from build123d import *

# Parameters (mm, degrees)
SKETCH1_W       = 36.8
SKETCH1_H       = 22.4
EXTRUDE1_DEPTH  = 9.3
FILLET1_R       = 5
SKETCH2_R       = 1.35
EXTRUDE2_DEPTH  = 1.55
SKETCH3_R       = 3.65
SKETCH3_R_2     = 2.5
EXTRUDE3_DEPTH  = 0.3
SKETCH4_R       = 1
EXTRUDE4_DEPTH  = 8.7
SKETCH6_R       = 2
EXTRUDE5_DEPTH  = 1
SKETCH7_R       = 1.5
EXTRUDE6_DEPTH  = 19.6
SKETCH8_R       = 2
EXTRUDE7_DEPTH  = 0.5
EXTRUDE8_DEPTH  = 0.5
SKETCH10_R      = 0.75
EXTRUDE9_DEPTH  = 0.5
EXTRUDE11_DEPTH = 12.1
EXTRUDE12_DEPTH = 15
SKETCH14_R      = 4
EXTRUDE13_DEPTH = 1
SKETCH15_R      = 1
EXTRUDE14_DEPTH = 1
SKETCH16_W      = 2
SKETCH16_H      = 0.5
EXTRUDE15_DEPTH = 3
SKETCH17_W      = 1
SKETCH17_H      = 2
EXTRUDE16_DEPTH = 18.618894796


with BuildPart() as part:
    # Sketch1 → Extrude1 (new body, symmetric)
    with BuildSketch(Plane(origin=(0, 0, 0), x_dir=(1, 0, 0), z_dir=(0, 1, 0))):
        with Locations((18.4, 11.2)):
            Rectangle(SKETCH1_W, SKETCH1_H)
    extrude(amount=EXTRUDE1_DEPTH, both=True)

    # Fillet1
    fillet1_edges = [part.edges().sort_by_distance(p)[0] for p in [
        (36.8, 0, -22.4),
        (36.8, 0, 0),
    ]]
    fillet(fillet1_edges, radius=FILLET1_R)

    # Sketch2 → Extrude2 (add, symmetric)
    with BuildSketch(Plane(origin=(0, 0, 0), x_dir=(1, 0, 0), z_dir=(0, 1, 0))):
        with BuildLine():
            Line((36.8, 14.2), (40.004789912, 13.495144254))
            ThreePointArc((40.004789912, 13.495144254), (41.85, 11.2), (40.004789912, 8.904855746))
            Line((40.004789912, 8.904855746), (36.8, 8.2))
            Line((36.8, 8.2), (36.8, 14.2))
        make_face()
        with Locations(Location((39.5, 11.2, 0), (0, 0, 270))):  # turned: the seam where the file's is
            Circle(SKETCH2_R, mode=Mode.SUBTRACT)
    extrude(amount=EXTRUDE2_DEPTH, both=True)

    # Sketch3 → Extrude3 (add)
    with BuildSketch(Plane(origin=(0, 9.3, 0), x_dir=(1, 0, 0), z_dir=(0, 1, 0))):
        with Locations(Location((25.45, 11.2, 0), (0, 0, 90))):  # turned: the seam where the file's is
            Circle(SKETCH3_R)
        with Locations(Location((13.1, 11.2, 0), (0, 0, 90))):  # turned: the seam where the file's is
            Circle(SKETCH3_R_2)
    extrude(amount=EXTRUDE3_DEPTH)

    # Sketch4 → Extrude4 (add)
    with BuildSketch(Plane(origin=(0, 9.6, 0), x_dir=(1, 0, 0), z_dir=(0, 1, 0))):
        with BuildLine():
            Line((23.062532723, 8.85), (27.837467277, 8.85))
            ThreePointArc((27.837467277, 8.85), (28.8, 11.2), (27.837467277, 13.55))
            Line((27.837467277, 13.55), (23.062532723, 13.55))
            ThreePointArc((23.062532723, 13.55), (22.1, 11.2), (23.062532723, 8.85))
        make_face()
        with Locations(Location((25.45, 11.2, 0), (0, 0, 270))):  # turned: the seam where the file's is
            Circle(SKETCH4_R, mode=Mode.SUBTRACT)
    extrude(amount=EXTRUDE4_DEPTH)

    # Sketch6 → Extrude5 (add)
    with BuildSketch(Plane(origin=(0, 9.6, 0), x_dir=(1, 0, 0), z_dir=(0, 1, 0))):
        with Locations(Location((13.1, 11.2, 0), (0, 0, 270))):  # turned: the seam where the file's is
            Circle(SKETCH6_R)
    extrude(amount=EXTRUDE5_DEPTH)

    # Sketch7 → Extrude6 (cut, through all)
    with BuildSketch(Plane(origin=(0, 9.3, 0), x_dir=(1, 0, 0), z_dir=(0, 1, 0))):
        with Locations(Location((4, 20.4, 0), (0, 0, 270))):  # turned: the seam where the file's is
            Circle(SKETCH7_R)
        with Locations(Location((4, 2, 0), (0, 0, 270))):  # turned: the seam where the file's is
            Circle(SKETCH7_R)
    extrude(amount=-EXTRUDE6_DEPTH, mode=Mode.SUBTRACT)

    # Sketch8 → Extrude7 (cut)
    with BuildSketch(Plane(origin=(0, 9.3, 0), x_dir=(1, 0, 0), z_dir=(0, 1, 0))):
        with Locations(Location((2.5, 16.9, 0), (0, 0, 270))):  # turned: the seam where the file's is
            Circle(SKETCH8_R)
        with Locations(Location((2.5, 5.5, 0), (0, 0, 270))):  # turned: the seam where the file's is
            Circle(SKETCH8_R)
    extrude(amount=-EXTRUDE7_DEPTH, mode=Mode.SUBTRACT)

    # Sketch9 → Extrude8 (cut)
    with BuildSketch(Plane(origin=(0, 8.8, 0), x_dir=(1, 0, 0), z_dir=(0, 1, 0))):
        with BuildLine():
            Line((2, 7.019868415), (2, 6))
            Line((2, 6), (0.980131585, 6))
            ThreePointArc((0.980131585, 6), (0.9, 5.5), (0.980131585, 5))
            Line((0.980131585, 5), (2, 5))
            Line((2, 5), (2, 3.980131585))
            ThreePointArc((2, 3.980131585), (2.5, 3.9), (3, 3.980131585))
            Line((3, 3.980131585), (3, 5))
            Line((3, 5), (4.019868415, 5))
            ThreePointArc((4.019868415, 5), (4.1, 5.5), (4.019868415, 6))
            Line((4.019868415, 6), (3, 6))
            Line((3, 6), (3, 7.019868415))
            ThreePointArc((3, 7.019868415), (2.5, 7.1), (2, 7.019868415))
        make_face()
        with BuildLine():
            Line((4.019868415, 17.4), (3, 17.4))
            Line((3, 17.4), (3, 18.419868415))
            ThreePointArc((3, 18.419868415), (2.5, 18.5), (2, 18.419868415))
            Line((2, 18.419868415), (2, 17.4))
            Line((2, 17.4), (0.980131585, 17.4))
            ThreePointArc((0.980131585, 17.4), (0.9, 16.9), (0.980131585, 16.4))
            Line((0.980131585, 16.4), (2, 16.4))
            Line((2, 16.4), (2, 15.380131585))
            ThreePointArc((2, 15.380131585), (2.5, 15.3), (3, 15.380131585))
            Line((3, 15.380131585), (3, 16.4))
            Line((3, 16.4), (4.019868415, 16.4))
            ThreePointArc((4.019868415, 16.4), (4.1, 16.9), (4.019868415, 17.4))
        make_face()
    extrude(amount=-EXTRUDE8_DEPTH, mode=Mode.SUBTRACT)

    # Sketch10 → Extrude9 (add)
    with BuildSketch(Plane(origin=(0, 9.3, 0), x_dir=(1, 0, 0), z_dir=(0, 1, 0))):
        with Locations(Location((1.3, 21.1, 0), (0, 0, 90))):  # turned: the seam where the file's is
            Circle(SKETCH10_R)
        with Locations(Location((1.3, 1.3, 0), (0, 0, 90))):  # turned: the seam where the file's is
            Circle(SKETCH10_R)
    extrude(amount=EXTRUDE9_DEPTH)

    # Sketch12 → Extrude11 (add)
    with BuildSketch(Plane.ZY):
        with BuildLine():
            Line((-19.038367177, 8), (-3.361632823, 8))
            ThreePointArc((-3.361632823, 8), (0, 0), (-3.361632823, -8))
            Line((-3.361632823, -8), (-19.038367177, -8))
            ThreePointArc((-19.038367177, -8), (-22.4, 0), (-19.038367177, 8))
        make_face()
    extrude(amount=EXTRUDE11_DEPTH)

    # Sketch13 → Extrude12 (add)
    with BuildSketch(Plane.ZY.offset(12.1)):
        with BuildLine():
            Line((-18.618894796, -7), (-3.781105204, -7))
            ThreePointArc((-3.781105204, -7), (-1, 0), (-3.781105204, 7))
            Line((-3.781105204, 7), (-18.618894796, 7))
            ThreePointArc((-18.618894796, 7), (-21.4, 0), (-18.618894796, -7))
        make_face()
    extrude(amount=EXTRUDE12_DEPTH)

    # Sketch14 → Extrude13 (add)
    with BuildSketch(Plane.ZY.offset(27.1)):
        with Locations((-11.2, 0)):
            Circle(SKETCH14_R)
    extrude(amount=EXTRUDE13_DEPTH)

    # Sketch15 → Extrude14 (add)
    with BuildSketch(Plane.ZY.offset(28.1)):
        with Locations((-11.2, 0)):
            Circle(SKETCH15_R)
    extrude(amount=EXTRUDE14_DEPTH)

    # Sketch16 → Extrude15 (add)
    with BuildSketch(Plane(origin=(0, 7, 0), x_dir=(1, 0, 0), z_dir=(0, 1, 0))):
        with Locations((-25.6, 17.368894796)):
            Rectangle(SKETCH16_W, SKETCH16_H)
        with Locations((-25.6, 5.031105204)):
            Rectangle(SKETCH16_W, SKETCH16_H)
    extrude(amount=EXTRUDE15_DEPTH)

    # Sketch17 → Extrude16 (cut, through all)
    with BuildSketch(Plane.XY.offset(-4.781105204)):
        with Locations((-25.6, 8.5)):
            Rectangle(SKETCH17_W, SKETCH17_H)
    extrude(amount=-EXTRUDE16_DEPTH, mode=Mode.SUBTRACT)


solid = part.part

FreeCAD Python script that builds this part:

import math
import FreeCAD as App
import Part
import Sketcher

V = App.Vector


def edges_at(feature, points):
    """Names of the edges that pass closest to the given points."""
    edges = feature.Shape.Edges
    near = lambda p: min(range(len(edges)), key=lambda i: edges[i].distToShape(Part.Vertex(*p))[0])
    return sorted({f"Edge{near(p) + 1}" for p in points})

doc = App.newDocument("Part")
params = doc.addObject("Spreadsheet::Sheet", "Params")
for row, (alias, value) in enumerate([
    ("sketch1_width", "36.8 mm"),
    ("sketch1_height", "22.4 mm"),
    ("pad1_length", "18.6 mm"),
    ("fillet_radius", "5 mm"),
    ("sketch2_diameter", "2.7 mm"),
    ("sketch2_height", "6 mm"),
    ("sketch2_radius", "2.35 mm"),
    ("pad2_length", "3.1 mm"),
    ("sketch3_diameter", "5 mm"),
    ("sketch3_diameter2", "7.3 mm"),
    ("pad3_length", "0.3 mm"),
    ("sketch4_diameter", "2 mm"),
    ("sketch4_radius", "3.35 mm"),
    ("pad4_length", "8.7 mm"),
    ("sketch5_diameter", "4 mm"),
    ("pad5_length", "1 mm"),
    ("sketch6_diameter", "3 mm"),
    ("sketch7_diameter", "4 mm"),
    ("pocket2_length", "0.5 mm"),
    ("sketch8_radius", "1.6 mm"),
    ("pocket3_length", "0.5 mm"),
    ("sketch9_diameter", "1.5 mm"),
    ("pad6_length", "0.5 mm"),
    ("sketch10_radius", "11.2 mm"),
    ("pad7_length", "12.1 mm"),
    ("sketch11_radius", "10.2 mm"),
    ("pad8_length", "15 mm"),
    ("sketch12_diameter", "8 mm"),
    ("pad9_length", "1 mm"),
    ("sketch13_diameter", "2 mm"),
    ("pad10_length", "1 mm"),
    ("sketch14_width", "2 mm"),
    ("sketch14_height", "0.5 mm"),
    ("pad11_length", "3 mm"),
    ("sketch15_width", "1 mm"),
    ("sketch15_height", "2 mm"),
], start=1):
    params.set(f"A{row}", alias)
    params.set(f"B{row}", "=" + value)
    params.setAlias(f"B{row}", alias)

body = doc.addObject("PartDesign::Body", "Body")

# Sketch on XZ plane
sketch1 = body.newObject("Sketcher::SketchObject", "Sketch")
sketch1.AttachmentSupport = (doc.getObject("XZ_Plane"), [""])
sketch1.MapMode = "FlatFace"
sketch1.addGeometry([
    Part.LineSegment(V(0, -22.4, 0), V(0, 0, 0)),
    Part.LineSegment(V(0, 0, 0), V(36.8, 0, 0)),
    Part.LineSegment(V(36.8, 0, 0), V(36.8, -22.4, 0)),
    Part.LineSegment(V(36.8, -22.4, 0), V(0, -22.4, 0)),
], False)
sketch1.addConstraint([
    Sketcher.Constraint("Coincident", 0, 2, 1, 1),
    Sketcher.Constraint("Coincident", 1, 2, 2, 1),
    Sketcher.Constraint("Coincident", 2, 2, 3, 1),
    Sketcher.Constraint("Coincident", 3, 2, 0, 1),
    Sketcher.Constraint("Vertical", 0),
    Sketcher.Constraint("Horizontal", 1),
    Sketcher.Constraint("Vertical", 2),
    Sketcher.Constraint("Horizontal", 3),
    Sketcher.Constraint("Coincident", 0, 2, -1, 1),
    Sketcher.Constraint("DistanceX", 1, 1, 1, 2, 36.8),
    Sketcher.Constraint("DistanceY", 0, 1, 0, 2, 22.4),
])
sketch1.setExpression("Constraints[9]", "Params.sketch1_width")
sketch1.setExpression("Constraints[10]", "Params.sketch1_height")
pad1 = body.newObject("PartDesign::Pad", "Pad")
pad1.Profile = sketch1
pad1.setExpression("Length", "Params.pad1_length")
pad1.Midplane = True
doc.recompute()

fillet = body.newObject("PartDesign::Fillet", "Fillet")
fillet.Base = (pad1, edges_at(pad1, [(36.8, 0, -22.4), (36.8, 0, 0)]))
fillet.setExpression("Radius", "Params.fillet_radius")

# Sketch on XZ plane
sketch2 = body.newObject("Sketcher::SketchObject", "Sketch001")
sketch2.AttachmentSupport = (doc.getObject("XZ_Plane"), [""])
sketch2.MapMode = "FlatFace"
sketch2.addGeometry([
    Part.LineSegment(V(40.00479, -13.495144, 0), V(36.8, -14.2, 0)),  # 0
    Part.LineSegment(V(36.8, -14.2, 0), V(36.8, -8.2, 0)),  # 1
    Part.LineSegment(V(36.8, -8.2, 0), V(40.00479, -8.904856, 0)),  # 2
    Part.ArcOfCircle(Part.Circle(V(39.5, -11.2, 0), V(0, 0, 1), 2.35), math.radians(-77.595959), math.radians(77.595959)),  # 3
    Part.Circle(V(39.5, -11.2, 0), V(0, 0, 1), 1.35),  # 4
], False)
sketch2.addConstraint([
    Sketcher.Constraint("Coincident", 0, 2, 1, 1),
    Sketcher.Constraint("Coincident", 1, 2, 2, 1),
    Sketcher.Constraint("Tangent", 2, 2, 3, 2),
    Sketcher.Constraint("Tangent", 3, 1, 0, 1),
    Sketcher.Constraint("Vertical", 1),
    Sketcher.Constraint("Coincident", 4, 3, 3, 3),
    Sketcher.Constraint("Vertical", 2, 2, 3, 1),
    Sketcher.Constraint("Diameter", 4, 2.7),
    Sketcher.Constraint("DistanceY", 1, 1, 1, 2, 6.0),
    Sketcher.Constraint("Radius", 3, 2.35),
    Sketcher.Constraint("DistanceX", -1, 1, 3, 3, 39.5),
    Sketcher.Constraint("DistanceY", 3, 3, -1, 1, 11.2),
    Sketcher.Constraint("DistanceX", -1, 1, 0, 2, 36.8),
])
sketch2.setExpression("Constraints[7]", "Params.sketch2_diameter")
sketch2.setExpression("Constraints[8]", "Params.sketch2_height")
sketch2.setExpression("Constraints[9]", "Params.sketch2_radius")
pad2 = body.newObject("PartDesign::Pad", "Pad001")
pad2.Profile = sketch2
pad2.setExpression("Length", "Params.pad2_length")
pad2.Midplane = True

# Sketch on XZ plane
sketch3 = body.newObject("Sketcher::SketchObject", "Sketch002")
sketch3.AttachmentSupport = (doc.getObject("XZ_Plane"), [""])
sketch3.MapMode = "FlatFace"
sketch3.AttachmentOffset = App.Placement(V(0, 0, -9.3), App.Rotation())
sketch3.addGeometry([
    Part.Circle(V(25.45, -11.2, 0), V(0, 0, 1), 3.65),
    Part.Circle(V(13.1, -11.2, 0), V(0, 0, 1), 2.5),
], False)
sketch3.addConstraint([
    Sketcher.Constraint("Horizontal", 0, 3, 1, 3),
    Sketcher.Constraint("Diameter", 1, 5.0),
    Sketcher.Constraint("Diameter", 0, 7.3),
    Sketcher.Constraint("DistanceY", 0, 3, -1, 1, 11.2),
    Sketcher.Constraint("DistanceX", -1, 1, 1, 3, 13.1),
    Sketcher.Constraint("DistanceX", -1, 1, 0, 3, 25.45),
])
sketch3.setExpression("Constraints[1]", "Params.sketch3_diameter")
sketch3.setExpression("Constraints[2]", "Params.sketch3_diameter2")
pad3 = body.newObject("PartDesign::Pad", "Pad002")
pad3.Profile = sketch3
pad3.setExpression("Length", "Params.pad3_length")
pad3.Reversed = True

# Sketch on XZ plane
sketch4 = body.newObject("Sketcher::SketchObject", "Sketch003")
sketch4.AttachmentSupport = (doc.getObject("XZ_Plane"), [""])
sketch4.MapMode = "FlatFace"
sketch4.AttachmentOffset = App.Placement(V(0, 0, -9.6), App.Rotation())
sketch4.addGeometry([
    Part.LineSegment(V(23.062533, -8.85, 0), V(27.837467, -8.85, 0)),  # 0
    Part.ArcOfCircle(Part.Circle(V(25.45, -11.2, 0), V(0, 0, 1), 3.35), math.radians(-44.546873), math.radians(44.546873)),  # 1
    Part.LineSegment(V(27.837467, -13.55, 0), V(23.062533, -13.55, 0)),  # 2
    Part.ArcOfCircle(Part.Circle(V(25.45, -11.2, 0), V(0, 0, 1), 3.35), math.radians(135.453127), math.radians(224.546873)),  # 3
    Part.Circle(V(25.45, -11.2, 0), V(0, 0, 1), 1),  # 4
], False)
sketch4.addConstraint([
    Sketcher.Constraint("Coincident", 0, 2, 1, 2),
    Sketcher.Constraint("Coincident", 1, 1, 2, 1),
    Sketcher.Constraint("Coincident", 2, 2, 3, 2),
    Sketcher.Constraint("Coincident", 3, 1, 0, 1),
    Sketcher.Constraint("Horizontal", 0),
    Sketcher.Constraint("Horizontal", 2),
    Sketcher.Constraint("Coincident", 3, 3, 1, 3),
    Sketcher.Constraint("Coincident", 4, 3, 1, 3),
    Sketcher.Constraint("Equal", 1, 3),
    Sketcher.Constraint("Vertical", 0, 2, 1, 1),
    Sketcher.Constraint("Diameter", 4, 2.0),
    Sketcher.Constraint("Radius", 1, 3.35),
    Sketcher.Constraint("DistanceY", 1, 3, -1, 1, 11.2),
    Sketcher.Constraint("DistanceY", 1, 1, 0, 2, 4.7),
    Sketcher.Constraint("DistanceX", -1, 1, 1, 3, 25.45),
])
sketch4.setExpression("Constraints[10]", "Params.sketch4_diameter")
sketch4.setExpression("Constraints[11]", "Params.sketch4_radius")
pad4 = body.newObject("PartDesign::Pad", "Pad003")
pad4.Profile = sketch4
pad4.setExpression("Length", "Params.pad4_length")
pad4.Reversed = True

# Sketch on XZ plane
sketch5 = body.newObject("Sketcher::SketchObject", "Sketch004")
sketch5.AttachmentSupport = (doc.getObject("XZ_Plane"), [""])
sketch5.MapMode = "FlatFace"
sketch5.AttachmentOffset = App.Placement(V(0, 0, -9.6), App.Rotation())
sketch5.addGeometry(Part.Circle(V(13.1, -11.2, 0), V(0, 0, 1), 2), False)
sketch5.addConstraint([
    Sketcher.Constraint("Diameter", 0, 4.0),
    Sketcher.Constraint("DistanceX", -1, 1, 0, 3, 13.1),
    Sketcher.Constraint("DistanceY", 0, 3, -1, 1, 11.2),
])
sketch5.setExpression("Constraints[0]", "Params.sketch5_diameter")
pad5 = body.newObject("PartDesign::Pad", "Pad004")
pad5.Profile = sketch5
pad5.setExpression("Length", "Params.pad5_length")
pad5.Reversed = True

# Sketch on XZ plane
sketch6 = body.newObject("Sketcher::SketchObject", "Sketch005")
sketch6.AttachmentSupport = (doc.getObject("XZ_Plane"), [""])
sketch6.MapMode = "FlatFace"
sketch6.AttachmentOffset = App.Placement(V(0, 0, -9.3), App.Rotation())
sketch6.addGeometry([
    Part.Circle(V(4, -20.4, 0), V(0, 0, 1), 1.5),
    Part.Circle(V(4, -2, 0), V(0, 0, 1), 1.5),
], False)
sketch6.addConstraint([
    Sketcher.Constraint("Equal", 0, 1),
    Sketcher.Constraint("Vertical", 0, 3, 1, 3),
    Sketcher.Constraint("Diameter", 0, 3.0),
    Sketcher.Constraint("DistanceX", -1, 1, 0, 3, 4.0),
    Sketcher.Constraint("DistanceY", 1, 3, -1, 1, 2.0),
    Sketcher.Constraint("DistanceY", 0, 3, -1, 1, 20.4),
])
sketch6.setExpression("Constraints[2]", "Params.sketch6_diameter")
pocket1 = body.newObject("PartDesign::Pocket", "Pocket")
pocket1.Profile = sketch6
pocket1.Type = "ThroughAll"
pocket1.Reversed = True

# Sketch on XZ plane
sketch7 = body.newObject("Sketcher::SketchObject", "Sketch006")
sketch7.AttachmentSupport = (doc.getObject("XZ_Plane"), [""])
sketch7.MapMode = "FlatFace"
sketch7.AttachmentOffset = App.Placement(V(0, 0, -9.3), App.Rotation())
sketch7.addGeometry([
    Part.Circle(V(2.5, -16.9, 0), V(0, 0, 1), 2),
    Part.Circle(V(2.5, -5.5, 0), V(0, 0, 1), 2),
], False)
sketch7.addConstraint([
    Sketcher.Constraint("Equal", 0, 1),
    Sketcher.Constraint("Vertical", 0, 3, 1, 3),
    Sketcher.Constraint("Diameter", 0, 4.0),
    Sketcher.Constraint("DistanceX", -1, 1, 0, 3, 2.5),
    Sketcher.Constraint("DistanceY", 0, 3, -1, 1, 16.9),
    Sketcher.Constraint("DistanceY", 1, 3, -1, 1, 5.5),
])
sketch7.setExpression("Constraints[2]", "Params.sketch7_diameter")
pocket2 = body.newObject("PartDesign::Pocket", "Pocket001")
pocket2.Profile = sketch7
pocket2.setExpression("Length", "Params.pocket2_length")
pocket2.Reversed = True

# Sketch on XZ plane
sketch8 = body.newObject("Sketcher::SketchObject", "Sketch007")
sketch8.AttachmentSupport = (doc.getObject("XZ_Plane"), [""])
sketch8.MapMode = "FlatFace"
sketch8.AttachmentOffset = App.Placement(V(0, 0, -8.8), App.Rotation())
sketch8.addGeometry([
    Part.LineSegment(V(2, -7.019868, 0), V(2, -6, 0)),  # 0
    Part.LineSegment(V(2, -6, 0), V(0.980132, -6, 0)),  # 1
    Part.ArcOfCircle(Part.Circle(V(2.5, -5.5, 0), V(0, 0, 1), 1.6), math.radians(161.790043), math.radians(198.209957)),  # 2
    Part.LineSegment(V(0.980132, -5, 0), V(2, -5, 0)),  # 3
    Part.LineSegment(V(2, -5, 0), V(2, -3.980132, 0)),  # 4
    Part.ArcOfCircle(Part.Circle(V(2.5, -5.5, 0), V(0, 0, 1), 1.6), math.radians(71.790043), math.radians(108.209957)),  # 5
    Part.LineSegment(V(3, -3.980132, 0), V(3, -5, 0)),  # 6
    Part.LineSegment(V(3, -5, 0), V(4.019868, -5, 0)),  # 7
    Part.ArcOfCircle(Part.Circle(V(2.5, -5.5, 0), V(0, 0, 1), 1.6), math.radians(-18.209957), math.radians(18.209957)),  # 8
    Part.LineSegment(V(4.019868, -6, 0), V(3, -6, 0)),  # 9
    Part.LineSegment(V(3, -6, 0), V(3, -7.019868, 0)),  # 10
    Part.ArcOfCircle(Part.Circle(V(2.5, -5.5, 0), V(0, 0, 1), 1.6), math.radians(-108.209957), math.radians(-71.790043)),  # 11
    Part.LineSegment(V(4.019868, -17.4, 0), V(3, -17.4, 0)),  # 12
    Part.LineSegment(V(3, -17.4, 0), V(3, -18.419868, 0)),  # 13
    Part.ArcOfCircle(Part.Circle(V(2.5, -16.9, 0), V(0, 0, 1), 1.6), math.radians(-108.209957), math.radians(-71.790043)),  # 14
    Part.LineSegment(V(2, -18.419868, 0), V(2, -17.4, 0)),  # 15
    Part.LineSegment(V(2, -17.4, 0), V(0.980132, -17.4, 0)),  # 16
    Part.ArcOfCircle(Part.Circle(V(2.5, -16.9, 0), V(0, 0, 1), 1.6), math.radians(161.790043), math.radians(198.209957)),  # 17
    Part.LineSegment(V(0.980132, -16.4, 0), V(2, -16.4, 0)),  # 18
    Part.LineSegment(V(2, -16.4, 0), V(2, -15.380132, 0)),  # 19
    Part.ArcOfCircle(Part.Circle(V(2.5, -16.9, 0), V(0, 0, 1), 1.6), math.radians(71.790043), math.radians(108.209957)),  # 20
    Part.LineSegment(V(3, -15.380132, 0), V(3, -16.4, 0)),  # 21
    Part.LineSegment(V(3, -16.4, 0), V(4.019868, -16.4, 0)),  # 22
    Part.ArcOfCircle(Part.Circle(V(2.5, -16.9, 0), V(0, 0, 1), 1.6), math.radians(-18.209957), math.radians(18.209957)),  # 23
], False)
sketch8.addConstraint([
    Sketcher.Constraint("Coincident", 0, 2, 1, 1),
    Sketcher.Constraint("Coincident", 1, 2, 2, 2),
    Sketcher.Constraint("Coincident", 2, 1, 3, 1),
    Sketcher.Constraint("Coincident", 3, 2, 4, 1),
    Sketcher.Constraint("Coincident", 4, 2, 5, 2),
    Sketcher.Constraint("Coincident", 5, 1, 6, 1),
    Sketcher.Constraint("Coincident", 6, 2, 7, 1),
    Sketcher.Constraint("Coincident", 7, 2, 8, 2),
    Sketcher.Constraint("Coincident", 8, 1, 9, 1),
    Sketcher.Constraint("Coincident", 9, 2, 10, 1),
    Sketcher.Constraint("Coincident", 10, 2, 11, 2),
    Sketcher.Constraint("Coincident", 11, 1, 0, 1),
    Sketcher.Constraint("Coincident", 12, 2, 13, 1),
    Sketcher.Constraint("Coincident", 13, 2, 14, 2),
    Sketcher.Constraint("Coincident", 14, 1, 15, 1),
    Sketcher.Constraint("Coincident", 15, 2, 16, 1),
    Sketcher.Constraint("Coincident", 16, 2, 17, 2),
    Sketcher.Constraint("Coincident", 17, 1, 18, 1),
    Sketcher.Constraint("Coincident", 18, 2, 19, 1),
    Sketcher.Constraint("Coincident", 19, 2, 20, 2),
    Sketcher.Constraint("Coincident", 20, 1, 21, 1),
    Sketcher.Constraint("Coincident", 21, 2, 22, 1),
    Sketcher.Constraint("Coincident", 22, 2, 23, 2),
    Sketcher.Constraint("Coincident", 23, 1, 12, 1),
    Sketcher.Constraint("Vertical", 0),
    Sketcher.Constraint("Horizontal", 1),
    Sketcher.Constraint("Horizontal", 3),
    Sketcher.Constraint("Vertical", 4),
    Sketcher.Constraint("Vertical", 6),
    Sketcher.Constraint("Horizontal", 7),
    Sketcher.Constraint("Horizontal", 9),
    Sketcher.Constraint("Vertical", 10),
    Sketcher.Constraint("Horizontal", 12),
    Sketcher.Constraint("Vertical", 13),
    Sketcher.Constraint("Vertical", 15),
    Sketcher.Constraint("Horizontal", 16),
    Sketcher.Constraint("Horizontal", 18),
    Sketcher.Constraint("Vertical", 19),
    Sketcher.Constraint("Vertical", 21),
    Sketcher.Constraint("Horizontal", 22),
    Sketcher.Constraint("Coincident", 5, 3, 2, 3),
    Sketcher.Constraint("Coincident", 8, 3, 2, 3),
    Sketcher.Constraint("Coincident", 11, 3, 2, 3),
    Sketcher.Constraint("Coincident", 17, 3, 14, 3),
    Sketcher.Constraint("Coincident", 20, 3, 14, 3),
    Sketcher.Constraint("Coincident", 23, 3, 14, 3),
    Sketcher.Constraint("Equal", 2, 5),
    Sketcher.Constraint("Equal", 5, 8),
    Sketcher.Constraint("Equal", 8, 11),
    Sketcher.Constraint("Equal", 11, 14),
    Sketcher.Constraint("Equal", 14, 17),
    Sketcher.Constraint("Equal", 17, 20),
    Sketcher.Constraint("Equal", 20, 23),
    Sketcher.Constraint("Horizontal", 4, 2, 5, 1),
    Sketcher.Constraint("Horizontal", 3, 2, 6, 2),
    Sketcher.Constraint("Horizontal", 1, 2, 8, 1),
    Sketcher.Constraint("Horizontal", 10, 2, 11, 1),
    Sketcher.Constraint("Horizontal", 13, 2, 14, 1),
    Sketcher.Constraint("Horizontal", 12, 2, 15, 2),
    Sketcher.Constraint("Horizontal", 19, 2, 20, 1),
    Sketcher.Constraint("Horizontal", 18, 2, 21, 2),
    Sketcher.Constraint("Vertical", 11, 3, 14, 3),
    Sketcher.Constraint("Vertical", 1, 2, 2, 1),
    Sketcher.Constraint("Vertical", 0, 2, 3, 2),
    Sketcher.Constraint("Vertical", 10, 2, 12, 2),
    Sketcher.Constraint("Vertical", 2, 1, 16, 2),
    Sketcher.Constraint("Vertical", 16, 2, 17, 1),
    Sketcher.Constraint("Vertical", 15, 2, 18, 2),
    Sketcher.Constraint("Equal", 22, 0),
    Sketcher.Constraint("Radius", 2, 1.6),
    Sketcher.Constraint("DistanceX", -1, 1, 0, 2, 2.0),
    Sketcher.Constraint("DistanceY", 0, 2, -1, 1, 6.0),
    Sketcher.Constraint("DistanceY", 2, 1, -1, 1, 5.0),
    Sketcher.Constraint("DistanceY", 14, 3, -1, 1, 16.9),
])
sketch8.setExpression("Constraints[69]", "Params.sketch8_radius")
pocket3 = body.newObject("PartDesign::Pocket", "Pocket002")
pocket3.Profile = sketch8
pocket3.setExpression("Length", "Params.pocket3_length")
pocket3.Reversed = True

# Sketch on XZ plane
sketch9 = body.newObject("Sketcher::SketchObject", "Sketch008")
sketch9.AttachmentSupport = (doc.getObject("XZ_Plane"), [""])
sketch9.MapMode = "FlatFace"
sketch9.AttachmentOffset = App.Placement(V(0, 0, -9.3), App.Rotation())
sketch9.addGeometry([
    Part.Circle(V(1.3, -21.1, 0), V(0, 0, 1), 0.75),
    Part.Circle(V(1.3, -1.3, 0), V(0, 0, 1), 0.75),
], False)
sketch9.addConstraint([
    Sketcher.Constraint("Equal", 0, 1),
    Sketcher.Constraint("Vertical", 0, 3, 1, 3),
    Sketcher.Constraint("Diameter", 0, 1.5),
    Sketcher.Constraint("DistanceX", -1, 1, 0, 3, 1.3),
    Sketcher.Constraint("DistanceY", 0, 3, -1, 1, 21.1),
    Sketcher.Constraint("DistanceY", 1, 3, -1, 1, 1.3),
])
sketch9.setExpression("Constraints[2]", "Params.sketch9_diameter")
pad6 = body.newObject("PartDesign::Pad", "Pad005")
pad6.Profile = sketch9
pad6.setExpression("Length", "Params.pad6_length")
pad6.Reversed = True

# Sketch on YZ plane
sketch10 = body.newObject("Sketcher::SketchObject", "Sketch009")
sketch10.AttachmentSupport = (doc.getObject("YZ_Plane"), [""])
sketch10.MapMode = "FlatFace"
sketch10.addGeometry([
    Part.LineSegment(V(8, -3.361633, 0), V(8, -19.038367, 0)),
    Part.ArcOfCircle(Part.Circle(V(0, -11.2, 0), V(0, 0, 1), 11.2), math.radians(-135.584691), math.radians(-44.415309)),
    Part.LineSegment(V(-8, -19.038367, 0), V(-8, -3.361633, 0)),
    Part.ArcOfCircle(Part.Circle(V(0, -11.2, 0), V(0, 0, 1), 11.2), math.radians(44.415309), math.radians(135.584691)),
], False)
sketch10.addConstraint([
    Sketcher.Constraint("Coincident", 0, 2, 1, 2),
    Sketcher.Constraint("Coincident", 1, 1, 2, 1),
    Sketcher.Constraint("Coincident", 2, 2, 3, 2),
    Sketcher.Constraint("Coincident", 3, 1, 0, 1),
    Sketcher.Constraint("Vertical", 0),
    Sketcher.Constraint("Vertical", 2),
    Sketcher.Constraint("Coincident", 3, 3, 1, 3),
    Sketcher.Constraint("Equal", 1, 3),
    Sketcher.Constraint("Symmetric", 0, 2, 1, 1, -2),
    Sketcher.Constraint("Radius", 1, 11.2),
    Sketcher.Constraint("DistanceX", -1, 1, 0, 2, 8.0),
    Sketcher.Constraint("DistanceY", 1, 3, -1, 1, 11.2),
])
sketch10.setExpression("Constraints[9]", "Params.sketch10_radius")
pad7 = body.newObject("PartDesign::Pad", "Pad006")
pad7.Profile = sketch10
pad7.setExpression("Length", "Params.pad7_length")
pad7.Reversed = True

# Sketch on YZ plane
sketch11 = body.newObject("Sketcher::SketchObject", "Sketch010")
sketch11.AttachmentSupport = (doc.getObject("YZ_Plane"), [""])
sketch11.MapMode = "FlatFace"
sketch11.AttachmentOffset = App.Placement(V(0, 0, -12.1), App.Rotation())
sketch11.addGeometry([
    Part.LineSegment(V(-7, -18.618895, 0), V(-7, -3.781105, 0)),
    Part.ArcOfCircle(Part.Circle(V(0, -11.2, 0), V(0, 0, 1), 10.2), math.radians(46.664077), math.radians(133.335923)),
    Part.LineSegment(V(7, -3.781105, 0), V(7, -18.618895, 0)),
    Part.ArcOfCircle(Part.Circle(V(0, -11.2, 0), V(0, 0, 1), 10.2), math.radians(-133.335923), math.radians(-46.664077)),
], False)
sketch11.addConstraint([
    Sketcher.Constraint("Coincident", 0, 2, 1, 2),
    Sketcher.Constraint("Coincident", 1, 1, 2, 1),
    Sketcher.Constraint("Coincident", 2, 2, 3, 2),
    Sketcher.Constraint("Coincident", 3, 1, 0, 1),
    Sketcher.Constraint("Vertical", 0),
    Sketcher.Constraint("Vertical", 2),
    Sketcher.Constraint("Coincident", 3, 3, 1, 3),
    Sketcher.Constraint("Equal", 1, 3),
    Sketcher.Constraint("Symmetric", 0, 2, 1, 1, -2),
    Sketcher.Constraint("Radius", 1, 10.2),
    Sketcher.Constraint("DistanceX", 0, 2, -1, 1, 7.0),
    Sketcher.Constraint("DistanceY", 1, 3, -1, 1, 11.2),
])
sketch11.setExpression("Constraints[9]", "Params.sketch11_radius")
pad8 = body.newObject("PartDesign::Pad", "Pad007")
pad8.Profile = sketch11
pad8.setExpression("Length", "Params.pad8_length")
pad8.Reversed = True

# Sketch on YZ plane
sketch12 = body.newObject("Sketcher::SketchObject", "Sketch011")
sketch12.AttachmentSupport = (doc.getObject("YZ_Plane"), [""])
sketch12.MapMode = "FlatFace"
sketch12.AttachmentOffset = App.Placement(V(0, 0, -27.1), App.Rotation())
sketch12.addGeometry(Part.Circle(V(0, -11.2, 0), V(0, 0, 1), 4), False)
sketch12.addConstraint([
    Sketcher.Constraint("PointOnObject", 0, 3, -2),
    Sketcher.Constraint("Diameter", 0, 8.0),
    Sketcher.Constraint("DistanceY", 0, 3, -1, 1, 11.2),
])
sketch12.setExpression("Constraints[1]", "Params.sketch12_diameter")
pad9 = body.newObject("PartDesign::Pad", "Pad008")
pad9.Profile = sketch12
pad9.setExpression("Length", "Params.pad9_length")
pad9.Reversed = True

# Sketch on YZ plane
sketch13 = body.newObject("Sketcher::SketchObject", "Sketch012")
sketch13.AttachmentSupport = (doc.getObject("YZ_Plane"), [""])
sketch13.MapMode = "FlatFace"
sketch13.AttachmentOffset = App.Placement(V(0, 0, -28.1), App.Rotation())
sketch13.addGeometry(Part.Circle(V(0, -11.2, 0), V(0, 0, 1), 1), False)
sketch13.addConstraint([
    Sketcher.Constraint("PointOnObject", 0, 3, -2),
    Sketcher.Constraint("Diameter", 0, 2.0),
    Sketcher.Constraint("DistanceY", 0, 3, -1, 1, 11.2),
])
sketch13.setExpression("Constraints[1]", "Params.sketch13_diameter")
pad10 = body.newObject("PartDesign::Pad", "Pad009")
pad10.Profile = sketch13
pad10.setExpression("Length", "Params.pad10_length")
pad10.Reversed = True

# Sketch on XZ plane
sketch14 = body.newObject("Sketcher::SketchObject", "Sketch013")
sketch14.AttachmentSupport = (doc.getObject("XZ_Plane"), [""])
sketch14.MapMode = "FlatFace"
sketch14.AttachmentOffset = App.Placement(V(0, 0, -7), App.Rotation())
sketch14.addGeometry([
    Part.LineSegment(V(-26.6, -17.618895, 0), V(-26.6, -17.118895, 0)),  # 0
    Part.LineSegment(V(-26.6, -17.118895, 0), V(-24.6, -17.118895, 0)),  # 1
    Part.LineSegment(V(-24.6, -17.118895, 0), V(-24.6, -17.618895, 0)),  # 2
    Part.LineSegment(V(-24.6, -17.618895, 0), V(-26.6, -17.618895, 0)),  # 3
    Part.LineSegment(V(-26.6, -5.281105, 0), V(-26.6, -4.781105, 0)),  # 4
    Part.LineSegment(V(-26.6, -4.781105, 0), V(-24.6, -4.781105, 0)),  # 5
    Part.LineSegment(V(-24.6, -4.781105, 0), V(-24.6, -5.281105, 0)),  # 6
    Part.LineSegment(V(-24.6, -5.281105, 0), V(-26.6, -5.281105, 0)),  # 7
], False)
sketch14.addConstraint([
    Sketcher.Constraint("Coincident", 0, 2, 1, 1),
    Sketcher.Constraint("Coincident", 1, 2, 2, 1),
    Sketcher.Constraint("Coincident", 2, 2, 3, 1),
    Sketcher.Constraint("Coincident", 3, 2, 0, 1),
    Sketcher.Constraint("Coincident", 4, 2, 5, 1),
    Sketcher.Constraint("Coincident", 5, 2, 6, 1),
    Sketcher.Constraint("Coincident", 6, 2, 7, 1),
    Sketcher.Constraint("Coincident", 7, 2, 4, 1),
    Sketcher.Constraint("Vertical", 0),
    Sketcher.Constraint("Horizontal", 1),
    Sketcher.Constraint("Vertical", 2),
    Sketcher.Constraint("Horizontal", 3),
    Sketcher.Constraint("Vertical", 4),
    Sketcher.Constraint("Horizontal", 5),
    Sketcher.Constraint("Vertical", 6),
    Sketcher.Constraint("Horizontal", 7),
    Sketcher.Constraint("Vertical", 3, 2, 4, 2),
    Sketcher.Constraint("Vertical", 2, 2, 5, 2),
    Sketcher.Constraint("Equal", 2, 4),
    Sketcher.Constraint("DistanceX", 1, 1, 1, 2, 2.0),
    Sketcher.Constraint("DistanceY", 0, 1, 0, 2, 0.5),
    Sketcher.Constraint("DistanceX", 0, 2, -1, 1, 26.6),
    Sketcher.Constraint("DistanceY", 0, 2, 4, 2, 12.33779),
    Sketcher.Constraint("DistanceY", 0, 2, -1, 1, 17.118895),
])
sketch14.setExpression("Constraints[19]", "Params.sketch14_width")
sketch14.setExpression("Constraints[20]", "Params.sketch14_height")
pad11 = body.newObject("PartDesign::Pad", "Pad010")
pad11.Profile = sketch14
pad11.setExpression("Length", "Params.pad11_length")
pad11.Reversed = True

# Sketch on XY plane
sketch15 = body.newObject("Sketcher::SketchObject", "Sketch014")
sketch15.AttachmentSupport = (doc.getObject("XY_Plane"), [""])
sketch15.MapMode = "FlatFace"
sketch15.AttachmentOffset = App.Placement(V(0, 0, -4.781105), App.Rotation())
sketch15.addGeometry([
    Part.LineSegment(V(-26.1, 9.5, 0), V(-26.1, 7.5, 0)),
    Part.LineSegment(V(-26.1, 7.5, 0), V(-25.1, 7.5, 0)),
    Part.LineSegment(V(-25.1, 7.5, 0), V(-25.1, 9.5, 0)),
    Part.LineSegment(V(-25.1, 9.5, 0), V(-26.1, 9.5, 0)),
], False)
sketch15.addConstraint([
    Sketcher.Constraint("Coincident", 0, 2, 1, 1),
    Sketcher.Constraint("Coincident", 1, 2, 2, 1),
    Sketcher.Constraint("Coincident", 2, 2, 3, 1),
    Sketcher.Constraint("Coincident", 3, 2, 0, 1),
    Sketcher.Constraint("Vertical", 0),
    Sketcher.Constraint("Horizontal", 1),
    Sketcher.Constraint("Vertical", 2),
    Sketcher.Constraint("Horizontal", 3),
    Sketcher.Constraint("DistanceX", 1, 1, 1, 2, 1.0),
    Sketcher.Constraint("DistanceY", 0, 2, 0, 1, 2.0),
    Sketcher.Constraint("DistanceX", 0, 2, -1, 1, 26.1),
    Sketcher.Constraint("DistanceY", -1, 1, 0, 2, 7.5),
])
sketch15.setExpression("Constraints[8]", "Params.sketch15_width")
sketch15.setExpression("Constraints[9]", "Params.sketch15_height")
pocket4 = body.newObject("PartDesign::Pocket", "Pocket003")
pocket4.Profile = sketch15
pocket4.Type = "ThroughAll"

doc.recompute()
